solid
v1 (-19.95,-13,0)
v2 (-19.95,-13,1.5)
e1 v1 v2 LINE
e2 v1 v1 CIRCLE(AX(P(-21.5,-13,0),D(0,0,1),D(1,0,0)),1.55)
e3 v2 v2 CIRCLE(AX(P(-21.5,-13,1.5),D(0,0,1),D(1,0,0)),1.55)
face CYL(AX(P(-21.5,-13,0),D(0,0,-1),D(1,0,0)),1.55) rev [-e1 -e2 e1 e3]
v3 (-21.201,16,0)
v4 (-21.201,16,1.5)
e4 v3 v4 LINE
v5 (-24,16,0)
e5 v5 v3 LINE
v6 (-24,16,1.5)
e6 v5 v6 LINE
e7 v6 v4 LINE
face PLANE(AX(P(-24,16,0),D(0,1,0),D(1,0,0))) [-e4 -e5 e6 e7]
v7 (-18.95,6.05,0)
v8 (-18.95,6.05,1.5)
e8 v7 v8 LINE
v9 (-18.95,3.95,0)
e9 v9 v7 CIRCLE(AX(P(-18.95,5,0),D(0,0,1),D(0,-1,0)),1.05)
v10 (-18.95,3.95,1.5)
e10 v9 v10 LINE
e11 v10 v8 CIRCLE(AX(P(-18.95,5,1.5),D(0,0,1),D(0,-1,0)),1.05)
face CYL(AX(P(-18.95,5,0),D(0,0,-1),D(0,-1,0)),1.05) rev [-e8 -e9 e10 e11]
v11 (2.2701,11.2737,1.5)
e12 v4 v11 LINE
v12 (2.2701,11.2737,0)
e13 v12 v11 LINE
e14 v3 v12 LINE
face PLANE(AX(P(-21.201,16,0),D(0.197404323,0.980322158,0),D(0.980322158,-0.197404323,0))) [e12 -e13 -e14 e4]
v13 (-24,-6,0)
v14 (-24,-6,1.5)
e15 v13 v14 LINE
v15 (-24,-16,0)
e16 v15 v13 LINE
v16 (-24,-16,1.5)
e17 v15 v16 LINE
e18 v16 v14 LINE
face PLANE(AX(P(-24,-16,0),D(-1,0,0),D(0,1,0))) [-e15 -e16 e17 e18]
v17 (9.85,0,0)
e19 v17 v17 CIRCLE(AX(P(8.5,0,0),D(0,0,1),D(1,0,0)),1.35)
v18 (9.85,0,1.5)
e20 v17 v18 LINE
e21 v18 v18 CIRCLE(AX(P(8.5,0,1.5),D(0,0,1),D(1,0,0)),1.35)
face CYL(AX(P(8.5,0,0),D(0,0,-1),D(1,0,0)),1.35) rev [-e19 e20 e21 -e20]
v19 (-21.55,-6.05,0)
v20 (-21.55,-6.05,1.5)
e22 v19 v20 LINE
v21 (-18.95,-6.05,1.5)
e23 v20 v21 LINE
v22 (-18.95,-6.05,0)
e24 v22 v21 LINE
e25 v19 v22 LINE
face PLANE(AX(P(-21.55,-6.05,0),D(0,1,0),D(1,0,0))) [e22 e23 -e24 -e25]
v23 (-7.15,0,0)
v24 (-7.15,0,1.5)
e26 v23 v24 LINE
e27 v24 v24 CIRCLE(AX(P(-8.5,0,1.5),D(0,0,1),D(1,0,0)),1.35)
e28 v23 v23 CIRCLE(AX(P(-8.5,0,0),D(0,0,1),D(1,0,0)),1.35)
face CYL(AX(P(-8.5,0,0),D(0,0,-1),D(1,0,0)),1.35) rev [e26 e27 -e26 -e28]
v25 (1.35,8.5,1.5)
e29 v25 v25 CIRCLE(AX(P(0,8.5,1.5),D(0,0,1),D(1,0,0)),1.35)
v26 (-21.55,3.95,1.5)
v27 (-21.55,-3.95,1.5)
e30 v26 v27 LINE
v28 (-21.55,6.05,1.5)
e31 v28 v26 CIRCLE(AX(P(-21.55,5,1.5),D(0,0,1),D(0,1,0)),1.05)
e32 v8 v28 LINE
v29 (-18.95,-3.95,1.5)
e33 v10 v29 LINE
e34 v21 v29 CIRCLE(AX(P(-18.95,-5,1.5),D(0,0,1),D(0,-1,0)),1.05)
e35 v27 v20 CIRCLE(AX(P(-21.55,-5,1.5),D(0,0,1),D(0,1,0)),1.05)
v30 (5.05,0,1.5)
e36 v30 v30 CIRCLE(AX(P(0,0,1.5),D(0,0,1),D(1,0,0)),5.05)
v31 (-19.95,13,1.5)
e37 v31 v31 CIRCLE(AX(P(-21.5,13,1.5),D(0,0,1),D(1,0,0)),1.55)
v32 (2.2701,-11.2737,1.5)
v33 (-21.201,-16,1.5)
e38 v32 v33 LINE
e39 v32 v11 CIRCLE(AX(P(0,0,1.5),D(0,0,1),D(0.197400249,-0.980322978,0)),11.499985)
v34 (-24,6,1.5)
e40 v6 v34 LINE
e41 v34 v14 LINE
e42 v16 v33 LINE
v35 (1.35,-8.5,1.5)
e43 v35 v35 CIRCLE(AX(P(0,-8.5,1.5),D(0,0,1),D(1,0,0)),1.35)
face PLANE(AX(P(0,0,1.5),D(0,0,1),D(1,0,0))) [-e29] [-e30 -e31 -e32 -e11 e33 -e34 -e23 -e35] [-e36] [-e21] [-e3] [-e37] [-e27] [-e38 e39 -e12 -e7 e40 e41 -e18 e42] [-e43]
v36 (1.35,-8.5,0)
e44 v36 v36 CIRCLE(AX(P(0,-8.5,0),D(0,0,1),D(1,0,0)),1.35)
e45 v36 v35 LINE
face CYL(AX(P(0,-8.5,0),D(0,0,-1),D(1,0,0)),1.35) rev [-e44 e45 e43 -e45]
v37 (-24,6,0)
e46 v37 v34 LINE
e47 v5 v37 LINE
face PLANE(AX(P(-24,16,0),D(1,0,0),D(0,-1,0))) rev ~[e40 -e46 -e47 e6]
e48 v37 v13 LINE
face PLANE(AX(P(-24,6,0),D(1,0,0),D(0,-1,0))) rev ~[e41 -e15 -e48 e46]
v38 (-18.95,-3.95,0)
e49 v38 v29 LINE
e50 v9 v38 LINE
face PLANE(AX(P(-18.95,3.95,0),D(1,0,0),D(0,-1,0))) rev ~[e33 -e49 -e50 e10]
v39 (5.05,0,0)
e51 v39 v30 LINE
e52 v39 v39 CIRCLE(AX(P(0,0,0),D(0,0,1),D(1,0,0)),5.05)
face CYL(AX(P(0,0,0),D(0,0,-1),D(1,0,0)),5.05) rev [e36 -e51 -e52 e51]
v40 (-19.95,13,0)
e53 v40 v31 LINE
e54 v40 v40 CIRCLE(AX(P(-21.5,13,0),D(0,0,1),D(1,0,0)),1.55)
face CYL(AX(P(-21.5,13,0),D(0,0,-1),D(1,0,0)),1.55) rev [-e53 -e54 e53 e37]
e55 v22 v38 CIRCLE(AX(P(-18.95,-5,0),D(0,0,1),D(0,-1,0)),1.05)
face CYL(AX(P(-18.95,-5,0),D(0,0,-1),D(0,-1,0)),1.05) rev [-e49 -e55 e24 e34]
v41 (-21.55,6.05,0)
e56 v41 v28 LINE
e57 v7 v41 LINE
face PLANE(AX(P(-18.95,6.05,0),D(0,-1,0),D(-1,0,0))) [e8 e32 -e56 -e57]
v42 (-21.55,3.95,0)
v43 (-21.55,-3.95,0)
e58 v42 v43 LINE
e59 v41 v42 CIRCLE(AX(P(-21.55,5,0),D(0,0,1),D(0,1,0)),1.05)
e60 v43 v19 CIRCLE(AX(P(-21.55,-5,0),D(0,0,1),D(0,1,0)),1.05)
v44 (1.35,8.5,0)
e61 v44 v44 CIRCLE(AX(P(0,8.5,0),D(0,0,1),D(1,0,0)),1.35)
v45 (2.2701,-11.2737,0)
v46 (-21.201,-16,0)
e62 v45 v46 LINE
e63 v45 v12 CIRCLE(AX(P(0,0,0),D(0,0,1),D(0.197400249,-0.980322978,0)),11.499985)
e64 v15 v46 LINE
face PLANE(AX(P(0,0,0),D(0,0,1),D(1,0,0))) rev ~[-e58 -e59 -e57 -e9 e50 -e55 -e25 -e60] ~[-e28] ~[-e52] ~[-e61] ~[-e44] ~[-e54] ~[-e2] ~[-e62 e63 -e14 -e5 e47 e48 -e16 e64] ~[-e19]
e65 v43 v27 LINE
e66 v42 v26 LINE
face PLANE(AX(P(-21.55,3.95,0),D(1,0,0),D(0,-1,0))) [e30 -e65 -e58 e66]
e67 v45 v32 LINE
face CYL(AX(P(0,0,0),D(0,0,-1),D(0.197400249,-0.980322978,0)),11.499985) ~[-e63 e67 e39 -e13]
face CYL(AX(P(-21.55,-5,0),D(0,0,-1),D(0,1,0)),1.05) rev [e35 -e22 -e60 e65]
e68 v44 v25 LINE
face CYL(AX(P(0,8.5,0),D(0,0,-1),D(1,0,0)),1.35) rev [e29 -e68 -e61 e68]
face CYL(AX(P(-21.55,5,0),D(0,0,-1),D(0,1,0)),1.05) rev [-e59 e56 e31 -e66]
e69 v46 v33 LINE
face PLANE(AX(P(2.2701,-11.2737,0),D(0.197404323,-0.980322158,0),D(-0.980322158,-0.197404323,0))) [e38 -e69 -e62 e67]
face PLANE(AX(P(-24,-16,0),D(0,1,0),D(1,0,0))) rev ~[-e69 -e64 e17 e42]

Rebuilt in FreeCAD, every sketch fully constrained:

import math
import FreeCAD as App
import Part
import Sketcher

V = App.Vector

doc = App.newDocument("Part")
body = doc.addObject("PartDesign::Body", "Body")

sketch1 = body.newObject("Sketcher::SketchObject", "Sketch")
sketch1.AttachmentSupport = (doc.getObject("XY_Plane"), [""])
sketch1.MapMode = "FlatFace"
sketch1.addGeometry(Part.LineSegment(V(-24, 16, 0), V(-24, -16, 0)), False)
sketch1.addGeometry(Part.LineSegment(V(-24, -16, 0), V(-21.201, -16, 0)), False)
sketch1.addGeometry(Part.LineSegment(V(-21.201, -16, 0), V(2.2701, -11.2737, 0)), False)
sketch1.addGeometry(Part.ArcOfCircle(Part.Circle(V(0, 0, 0), V(0, 0, 1), 11.499985), math.radians(-78.615026), math.radians(78.615026)), False)
sketch1.addGeometry(Part.LineSegment(V(2.2701, 11.2737, 0), V(-21.201, 16, 0)), False)
sketch1.addGeometry(Part.LineSegment(V(-21.201, 16, 0), V(-24, 16, 0)), False)
sketch1.addGeometry(Part.Circle(V(-21.5, -13, 0), V(0, 0, 1), 1.55), False)
sketch1.addGeometry(Part.Circle(V(0, -8.5, 0), V(0, 0, 1), 1.35), False)
sketch1.addGeometry(Part.LineSegment(V(-21.55, 6.05, 0), V(-18.95, 6.05, 0)), False)
sketch1.addGeometry(Part.ArcOfCircle(Part.Circle(V(-18.95, 5, 0), V(0, 0, 1), 1.05), math.radians(-90), math.radians(90)), False)
sketch1.addGeometry(Part.LineSegment(V(-18.95, 3.95, 0), V(-18.95, -3.95, 0)), False)
sketch1.addGeometry(Part.ArcOfCircle(Part.Circle(V(-18.95, -5, 0), V(0, 0, 1), 1.05), math.radians(-90), math.radians(90)), False)
sketch1.addGeometry(Part.LineSegment(V(-18.95, -6.05, 0), V(-21.55, -6.05, 0)), False)
sketch1.addGeometry(Part.ArcOfCircle(Part.Circle(V(-21.55, -5, 0), V(0, 0, 1), 1.05), math.radians(90), math.radians(270)), False)
sketch1.addGeometry(Part.LineSegment(V(-21.55, -3.95, 0), V(-21.55, 3.95, 0)), False)
sketch1.addGeometry(Part.ArcOfCircle(Part.Circle(V(-21.55, 5, 0), V(0, 0, 1), 1.05), math.radians(90), math.radians(270)), False)
sketch1.addGeometry(Part.Circle(V(-8.5, 0, 0), V(0, 0, 1), 1.35), False)
sketch1.addGeometry(Part.Circle(V(-21.5, 13, 0), V(0, 0, 1), 1.55), False)
sketch1.addGeometry(Part.Circle(V(0, 0, 0), V(0, 0, 1), 5.05), False)
sketch1.addGeometry(Part.Circle(V(8.5, 0, 0), V(0, 0, 1), 1.35), False)
sketch1.addGeometry(Part.Circle(V(0, 8.5, 0), V(0, 0, 1), 1.35), False)
sketch1.addConstraint(Sketcher.Constraint("Coincident", 0, 2, 1, 1))
sketch1.addConstraint(Sketcher.Constraint("Coincident", 1, 2, 2, 1))
sketch1.addConstraint(Sketcher.Constraint("Tangent", 2, 2, 3, 1))
sketch1.addConstraint(Sketcher.Constraint("Tangent", 3, 2, 4, 1))
sketch1.addConstraint(Sketcher.Constraint("Coincident", 4, 2, 5, 1))
sketch1.addConstraint(Sketcher.Constraint("Coincident", 5, 2, 0, 1))
sketch1.addConstraint(Sketcher.Constraint("Tangent", 8, 2, 9, 2))
sketch1.addConstraint(Sketcher.Constraint("Coincident", 9, 1, 10, 1))
sketch1.addConstraint(Sketcher.Constraint("Coincident", 10, 2, 11, 2))
sketch1.addConstraint(Sketcher.Constraint("Tangent", 11, 1, 12, 1))
sketch1.addConstraint(Sketcher.Constraint("Tangent", 12, 2, 13, 2))
sketch1.addConstraint(Sketcher.Constraint("Coincident", 13, 1, 14, 1))
sketch1.addConstraint(Sketcher.Constraint("Coincident", 14, 2, 15, 2))
sketch1.addConstraint(Sketcher.Constraint("Tangent", 15, 1, 8, 1))
sketch1.addConstraint(Sketcher.Constraint("Vertical", 0))
sketch1.addConstraint(Sketcher.Constraint("Horizontal", 1))
sketch1.addConstraint(Sketcher.Constraint("Horizontal", 5))
sketch1.addConstraint(Sketcher.Constraint("Horizontal", 8))
sketch1.addConstraint(Sketcher.Constraint("Vertical", 10))
sketch1.addConstraint(Sketcher.Constraint("Horizontal", 12))
sketch1.addConstraint(Sketcher.Constraint("Vertical", 14))
sketch1.addConstraint(Sketcher.Constraint("Coincident", 3, 3, -1, 1))
sketch1.addConstraint(Sketcher.Constraint("Coincident", 18, 3, -1, 1))
sketch1.addConstraint(Sketcher.Constraint("Equal", 9, 11))
sketch1.addConstraint(Sketcher.Constraint("Equal", 11, 13))
sketch1.addConstraint(Sketcher.Constraint("Equal", 13, 15))
sketch1.addConstraint(Sketcher.Constraint("Equal", 7, 16))
sketch1.addConstraint(Sketcher.Constraint("Equal", 6, 17))
sketch1.addConstraint(Sketcher.Constraint("Equal", 16, 19))
sketch1.addConstraint(Sketcher.Constraint("Equal", 19, 20))
sketch1.addConstraint(Sketcher.Constraint("Symmetric", 16, 3, 19, 3, -1, 1))
sketch1.addConstraint(Sketcher.Constraint("Symmetric", 7, 3, 20, 3, -1, 1))
sketch1.addConstraint(Sketcher.Constraint("Symmetric", 9, 3, 11, 3, -1))
sketch1.addConstraint(Sketcher.Constraint("Symmetric", 6, 3, 17, 3, -1))
sketch1.addConstraint(Sketcher.Constraint("Symmetric", 1, 2, 4, 2, -1))
sketch1.addConstraint(Sketcher.Constraint("PointOnObject", 7, 3, -2))
sketch1.addConstraint(Sketcher.Constraint("PointOnObject", 16, 3, -1))
sketch1.addConstraint(Sketcher.Constraint("Vertical", 13, 3, 15, 3))
sketch1.addConstraint(Sketcher.Constraint("Vertical", 8, 2, 9, 1))
sketch1.addConstraint(Sketcher.Constraint("Vertical", 12, 2, 13, 1))
sketch1.addConstraint(Sketcher.Constraint("Diameter", 6, 3.1))
sketch1.addConstraint(Sketcher.Constraint("Diameter", 7, 2.7))
sketch1.addConstraint(Sketcher.Constraint("Diameter", 18, 10.1))
sketch1.addConstraint(Sketcher.Constraint("Radius", 9, 1.05))
sketch1.addConstraint(Sketcher.Constraint("DistanceY", 0, 2, -1, 1, 16.0))
sketch1.addConstraint(Sketcher.Constraint("DistanceY", 11, 3, 9, 3, 10.0))
sketch1.addConstraint(Sketcher.Constraint("DistanceY", 0, 2, 6, 3, 3.0))
sketch1.addConstraint(Sketcher.Constraint("DistanceY", 7, 3, -1, 1, 8.5))
sketch1.addConstraint(Sketcher.Constraint("DistanceX", 16, 3, -1, 1, 8.5))
sketch1.addConstraint(Sketcher.Constraint("Radius", 3, 11.5))
sketch1.addConstraint(Sketcher.Constraint("DistanceX", 0, 2, 6, 3, 2.5))
sketch1.addConstraint(Sketcher.Constraint("DistanceX", 13, 3, 6, 3, 0.05))
sketch1.addConstraint(Sketcher.Constraint("DistanceX", 8, 1, 8, 2, 2.6))
sketch1.addConstraint(Sketcher.Constraint("DistanceX", 0, 2, -1, 1, 24.0))
sketch1.addConstraint(Sketcher.Constraint("DistanceX", 1, 1, 1, 2, 2.799))
pad1 = body.newObject("PartDesign::Pad", "Pad")
pad1.Profile = sketch1
pad1.Length = 1.5

doc.recompute()
